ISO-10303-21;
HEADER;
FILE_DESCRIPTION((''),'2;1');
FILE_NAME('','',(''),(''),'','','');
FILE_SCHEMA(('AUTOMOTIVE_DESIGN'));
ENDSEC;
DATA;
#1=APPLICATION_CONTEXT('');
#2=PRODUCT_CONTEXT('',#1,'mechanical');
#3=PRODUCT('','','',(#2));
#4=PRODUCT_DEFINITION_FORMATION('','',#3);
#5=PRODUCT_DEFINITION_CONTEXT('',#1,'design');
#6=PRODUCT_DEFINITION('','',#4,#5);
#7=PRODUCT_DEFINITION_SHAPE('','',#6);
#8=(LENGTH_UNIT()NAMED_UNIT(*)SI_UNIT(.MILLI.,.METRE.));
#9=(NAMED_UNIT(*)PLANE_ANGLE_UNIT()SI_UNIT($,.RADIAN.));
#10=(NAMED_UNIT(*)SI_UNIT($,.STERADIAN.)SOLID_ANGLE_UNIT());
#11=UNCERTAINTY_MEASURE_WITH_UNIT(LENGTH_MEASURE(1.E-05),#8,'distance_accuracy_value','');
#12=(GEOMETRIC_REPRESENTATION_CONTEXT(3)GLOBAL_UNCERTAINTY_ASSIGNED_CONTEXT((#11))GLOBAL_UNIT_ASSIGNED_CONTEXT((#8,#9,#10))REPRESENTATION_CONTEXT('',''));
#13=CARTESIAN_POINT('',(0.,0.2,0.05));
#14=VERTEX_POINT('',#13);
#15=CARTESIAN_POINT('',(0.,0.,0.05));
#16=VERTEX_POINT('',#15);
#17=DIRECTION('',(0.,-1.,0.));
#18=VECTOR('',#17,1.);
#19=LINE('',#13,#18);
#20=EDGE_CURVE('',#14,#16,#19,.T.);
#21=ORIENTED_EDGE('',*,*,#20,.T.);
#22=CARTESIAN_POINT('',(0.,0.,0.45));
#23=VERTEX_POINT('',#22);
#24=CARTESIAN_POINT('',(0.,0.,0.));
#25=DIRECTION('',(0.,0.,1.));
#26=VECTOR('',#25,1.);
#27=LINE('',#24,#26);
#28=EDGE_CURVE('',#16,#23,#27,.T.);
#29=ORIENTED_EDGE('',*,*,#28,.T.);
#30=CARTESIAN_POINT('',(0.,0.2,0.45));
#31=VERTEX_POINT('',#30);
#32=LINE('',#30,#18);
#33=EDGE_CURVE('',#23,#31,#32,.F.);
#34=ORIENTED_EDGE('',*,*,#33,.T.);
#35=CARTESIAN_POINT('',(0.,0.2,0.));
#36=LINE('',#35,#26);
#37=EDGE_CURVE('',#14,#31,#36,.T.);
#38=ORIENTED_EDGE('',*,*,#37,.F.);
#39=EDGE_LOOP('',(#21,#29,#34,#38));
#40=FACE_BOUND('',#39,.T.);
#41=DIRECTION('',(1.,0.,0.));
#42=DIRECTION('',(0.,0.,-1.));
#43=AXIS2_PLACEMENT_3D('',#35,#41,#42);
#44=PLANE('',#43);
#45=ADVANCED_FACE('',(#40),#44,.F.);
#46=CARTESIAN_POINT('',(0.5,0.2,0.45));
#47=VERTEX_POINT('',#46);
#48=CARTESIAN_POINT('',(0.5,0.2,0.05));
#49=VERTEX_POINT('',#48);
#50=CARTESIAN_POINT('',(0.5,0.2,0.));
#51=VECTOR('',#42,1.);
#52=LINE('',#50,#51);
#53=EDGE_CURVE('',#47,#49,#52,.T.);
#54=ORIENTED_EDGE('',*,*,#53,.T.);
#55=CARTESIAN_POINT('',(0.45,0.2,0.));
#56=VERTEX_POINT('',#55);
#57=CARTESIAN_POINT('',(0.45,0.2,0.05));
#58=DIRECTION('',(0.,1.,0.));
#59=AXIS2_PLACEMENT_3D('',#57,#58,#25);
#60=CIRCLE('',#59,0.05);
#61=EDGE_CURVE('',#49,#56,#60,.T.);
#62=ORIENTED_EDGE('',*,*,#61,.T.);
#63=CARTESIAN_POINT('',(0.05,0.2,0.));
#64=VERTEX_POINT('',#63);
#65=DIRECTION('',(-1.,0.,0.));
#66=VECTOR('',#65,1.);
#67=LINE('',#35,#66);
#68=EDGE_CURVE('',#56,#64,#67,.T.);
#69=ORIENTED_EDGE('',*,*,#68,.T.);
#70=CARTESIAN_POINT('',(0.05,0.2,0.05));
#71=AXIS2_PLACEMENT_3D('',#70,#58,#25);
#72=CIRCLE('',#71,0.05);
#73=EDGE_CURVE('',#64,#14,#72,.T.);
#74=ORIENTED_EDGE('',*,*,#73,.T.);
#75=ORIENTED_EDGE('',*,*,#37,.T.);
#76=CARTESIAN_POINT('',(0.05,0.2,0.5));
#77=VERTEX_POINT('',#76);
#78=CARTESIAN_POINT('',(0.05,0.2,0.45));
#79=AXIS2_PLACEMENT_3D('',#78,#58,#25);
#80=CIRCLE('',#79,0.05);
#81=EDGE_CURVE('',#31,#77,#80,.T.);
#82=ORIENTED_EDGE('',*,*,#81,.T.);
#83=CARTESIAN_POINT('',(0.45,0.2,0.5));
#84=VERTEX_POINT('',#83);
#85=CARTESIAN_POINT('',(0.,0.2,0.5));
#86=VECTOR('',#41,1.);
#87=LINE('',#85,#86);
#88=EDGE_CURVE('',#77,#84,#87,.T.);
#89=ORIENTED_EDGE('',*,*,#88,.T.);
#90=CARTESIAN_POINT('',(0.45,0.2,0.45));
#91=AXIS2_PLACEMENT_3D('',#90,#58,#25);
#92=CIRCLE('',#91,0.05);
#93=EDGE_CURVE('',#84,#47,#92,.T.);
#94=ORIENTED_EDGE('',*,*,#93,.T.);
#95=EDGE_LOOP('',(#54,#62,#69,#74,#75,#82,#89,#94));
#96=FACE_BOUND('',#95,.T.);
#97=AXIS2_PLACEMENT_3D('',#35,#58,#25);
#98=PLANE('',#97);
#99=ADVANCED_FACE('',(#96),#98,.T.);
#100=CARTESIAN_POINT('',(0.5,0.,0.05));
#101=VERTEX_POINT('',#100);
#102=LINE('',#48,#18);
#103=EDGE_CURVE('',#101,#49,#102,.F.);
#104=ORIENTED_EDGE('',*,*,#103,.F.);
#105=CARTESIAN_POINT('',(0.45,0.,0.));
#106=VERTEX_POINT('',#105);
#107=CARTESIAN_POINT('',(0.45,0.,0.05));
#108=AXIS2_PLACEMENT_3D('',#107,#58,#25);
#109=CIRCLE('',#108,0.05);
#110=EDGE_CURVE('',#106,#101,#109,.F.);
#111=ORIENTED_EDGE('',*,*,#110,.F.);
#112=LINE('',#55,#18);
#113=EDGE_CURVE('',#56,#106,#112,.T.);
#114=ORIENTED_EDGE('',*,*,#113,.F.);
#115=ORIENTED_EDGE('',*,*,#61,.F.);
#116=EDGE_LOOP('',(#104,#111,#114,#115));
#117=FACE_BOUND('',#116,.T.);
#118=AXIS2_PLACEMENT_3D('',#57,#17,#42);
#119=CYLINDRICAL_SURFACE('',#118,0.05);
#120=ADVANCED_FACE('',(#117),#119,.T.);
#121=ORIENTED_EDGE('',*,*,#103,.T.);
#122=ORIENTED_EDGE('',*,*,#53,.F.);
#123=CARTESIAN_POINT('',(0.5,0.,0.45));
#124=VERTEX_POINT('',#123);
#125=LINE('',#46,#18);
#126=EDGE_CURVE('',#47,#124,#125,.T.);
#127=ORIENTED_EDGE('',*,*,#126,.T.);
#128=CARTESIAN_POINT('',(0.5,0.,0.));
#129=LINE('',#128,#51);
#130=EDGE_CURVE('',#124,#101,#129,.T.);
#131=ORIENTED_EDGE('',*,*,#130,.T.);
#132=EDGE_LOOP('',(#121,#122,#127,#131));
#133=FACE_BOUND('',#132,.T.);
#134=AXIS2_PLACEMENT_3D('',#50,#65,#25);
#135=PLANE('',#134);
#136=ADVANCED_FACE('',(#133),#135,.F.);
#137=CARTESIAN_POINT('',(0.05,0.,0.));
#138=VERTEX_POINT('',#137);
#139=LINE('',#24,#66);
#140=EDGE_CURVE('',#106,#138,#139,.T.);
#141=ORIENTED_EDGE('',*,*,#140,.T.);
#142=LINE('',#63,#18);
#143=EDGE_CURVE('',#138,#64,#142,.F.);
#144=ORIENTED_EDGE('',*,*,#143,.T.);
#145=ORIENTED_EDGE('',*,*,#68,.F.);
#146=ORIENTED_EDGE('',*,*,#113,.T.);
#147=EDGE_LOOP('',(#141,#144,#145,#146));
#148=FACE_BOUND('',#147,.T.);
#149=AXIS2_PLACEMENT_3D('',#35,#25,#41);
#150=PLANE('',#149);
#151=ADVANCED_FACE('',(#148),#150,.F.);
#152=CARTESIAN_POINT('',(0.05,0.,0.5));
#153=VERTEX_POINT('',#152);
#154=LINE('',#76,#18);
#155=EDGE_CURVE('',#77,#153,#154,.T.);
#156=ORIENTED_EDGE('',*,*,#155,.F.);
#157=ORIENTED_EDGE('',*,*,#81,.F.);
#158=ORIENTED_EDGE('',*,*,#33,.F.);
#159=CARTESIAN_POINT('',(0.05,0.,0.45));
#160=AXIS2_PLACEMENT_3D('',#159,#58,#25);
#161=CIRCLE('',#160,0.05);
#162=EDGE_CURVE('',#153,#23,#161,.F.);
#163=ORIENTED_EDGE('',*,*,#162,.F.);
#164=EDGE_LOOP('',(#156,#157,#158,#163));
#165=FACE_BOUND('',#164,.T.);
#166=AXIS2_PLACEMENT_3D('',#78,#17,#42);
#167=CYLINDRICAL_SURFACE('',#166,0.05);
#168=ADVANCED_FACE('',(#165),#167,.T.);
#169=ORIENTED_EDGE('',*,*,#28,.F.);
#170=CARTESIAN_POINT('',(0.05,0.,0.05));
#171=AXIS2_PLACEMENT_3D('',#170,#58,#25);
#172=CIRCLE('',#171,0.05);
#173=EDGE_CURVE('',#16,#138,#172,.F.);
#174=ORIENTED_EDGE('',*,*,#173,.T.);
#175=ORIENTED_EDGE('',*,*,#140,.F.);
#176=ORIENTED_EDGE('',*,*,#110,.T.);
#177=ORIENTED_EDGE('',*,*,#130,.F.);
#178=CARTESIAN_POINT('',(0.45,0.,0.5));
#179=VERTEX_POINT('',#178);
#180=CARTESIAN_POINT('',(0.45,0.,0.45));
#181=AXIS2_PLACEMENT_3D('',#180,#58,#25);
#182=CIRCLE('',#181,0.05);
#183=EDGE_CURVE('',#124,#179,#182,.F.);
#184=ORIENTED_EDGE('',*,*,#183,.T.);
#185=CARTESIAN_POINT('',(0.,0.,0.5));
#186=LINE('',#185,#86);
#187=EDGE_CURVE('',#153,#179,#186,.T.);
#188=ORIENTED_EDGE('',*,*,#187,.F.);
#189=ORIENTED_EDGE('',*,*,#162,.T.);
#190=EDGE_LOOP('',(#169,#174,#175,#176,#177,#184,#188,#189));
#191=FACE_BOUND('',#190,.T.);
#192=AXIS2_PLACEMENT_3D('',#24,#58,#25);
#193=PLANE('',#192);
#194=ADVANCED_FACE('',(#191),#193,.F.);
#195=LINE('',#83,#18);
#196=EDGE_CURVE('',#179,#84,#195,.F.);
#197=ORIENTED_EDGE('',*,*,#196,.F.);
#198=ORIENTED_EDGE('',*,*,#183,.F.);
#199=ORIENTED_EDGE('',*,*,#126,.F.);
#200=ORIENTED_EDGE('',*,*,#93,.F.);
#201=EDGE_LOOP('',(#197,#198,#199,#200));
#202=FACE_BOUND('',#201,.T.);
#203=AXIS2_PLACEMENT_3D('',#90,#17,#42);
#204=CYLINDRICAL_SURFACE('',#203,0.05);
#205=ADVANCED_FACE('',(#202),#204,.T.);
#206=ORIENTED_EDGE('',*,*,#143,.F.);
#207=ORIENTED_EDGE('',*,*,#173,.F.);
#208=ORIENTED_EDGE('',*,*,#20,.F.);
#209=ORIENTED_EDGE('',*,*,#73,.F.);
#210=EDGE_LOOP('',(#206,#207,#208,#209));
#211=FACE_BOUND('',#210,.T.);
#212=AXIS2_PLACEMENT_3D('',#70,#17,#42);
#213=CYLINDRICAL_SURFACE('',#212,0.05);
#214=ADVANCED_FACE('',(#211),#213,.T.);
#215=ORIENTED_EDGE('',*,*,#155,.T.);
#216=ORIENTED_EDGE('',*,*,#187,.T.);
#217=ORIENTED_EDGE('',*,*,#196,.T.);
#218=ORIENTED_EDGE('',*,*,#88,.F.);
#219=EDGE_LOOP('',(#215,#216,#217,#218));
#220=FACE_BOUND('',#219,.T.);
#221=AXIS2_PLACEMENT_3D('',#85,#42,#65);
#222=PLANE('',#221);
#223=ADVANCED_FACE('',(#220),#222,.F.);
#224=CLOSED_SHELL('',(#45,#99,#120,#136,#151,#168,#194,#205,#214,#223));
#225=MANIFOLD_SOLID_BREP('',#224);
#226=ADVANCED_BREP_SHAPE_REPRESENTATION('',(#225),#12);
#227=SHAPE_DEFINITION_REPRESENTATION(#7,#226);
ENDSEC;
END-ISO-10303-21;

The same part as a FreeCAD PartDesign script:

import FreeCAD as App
import Part
import Sketcher

V = App.Vector
Q = App.Units.Quantity


def edges_at(feature, points):
    """Names of the edges that pass closest to the given points."""
    edges = feature.Shape.Edges
    near = lambda p: min(range(len(edges)), key=lambda i: edges[i].distToShape(Part.Vertex(*p))[0])
    return sorted({f"Edge{near(p) + 1}" for p in points})


def add_polygon(sketch, points):
    """Adds a closed chain of lines whose ends are joined by coincident constraints."""
    first, n = sketch.GeometryCount, len(points)
    for a, b in zip(points, points[1:] + points[:1]):
        sketch.addGeometry(Part.LineSegment(App.Vector(*a, 0), App.Vector(*b, 0)), False)
    for i in range(n):
        sketch.addConstraint(Sketcher.Constraint("Coincident", first + i, 2, first + (i + 1) % n, 1))

doc = App.newDocument("Part")
params = doc.addObject("Spreadsheet::Sheet", "Params")
for row, (alias, value) in enumerate([
    ("sketch1_width", "0.5 mm"),
    ("pad1_length", "0.2 mm"),
    ("fillet_radius", "0.05 mm"),
], start=1):
    params.set(f"A{row}", alias)
    params.set(f"B{row}", "=" + value)
    params.setAlias(f"B{row}", alias)

body = doc.addObject("PartDesign::Body", "Body")

# Sketch on XZ plane
sketch1 = body.newObject("Sketcher::SketchObject", "Sketch")
sketch1.AttachmentSupport = (doc.getObject("XZ_Plane"), [""])
sketch1.MapMode = "FlatFace"
add_polygon(sketch1, [(0, 0), (0, 0.5), (0.5, 0.5), (0.5, 0)])  # lines 0-3
sketch1.addConstraint([
    Sketcher.Constraint("Vertical", 0),
    Sketcher.Constraint("Horizontal", 1),
    Sketcher.Constraint("Vertical", 2),
    Sketcher.Constraint("Horizontal", 3),
    Sketcher.Constraint("Coincident", 3, 2, -1, 1),
    Sketcher.Constraint("Equal", 3, 0),
    Sketcher.Constraint("DistanceX", 1, 1, 1, 2, Q("0.5 mm")),
])
sketch1.setExpression("Constraints[10]", "Params.sketch1_width")
pad1 = body.newObject("PartDesign::Pad", "Pad")
pad1.Profile = sketch1
pad1.setExpression("Length", "Params.pad1_length")
pad1.Reversed = True
doc.recompute()

fillet = body.newObject("PartDesign::Fillet", "Fillet")
fillet.Base = (pad1, edges_at(pad1, [
    (0, 0.1, 0),
    (0.5, 0.1, 0),
    (0.5, 0.1, 0.5),
    (0, 0.1, 0.5),
]))
fillet.setExpression("Radius", "Params.fillet_radius")

doc.recompute()
